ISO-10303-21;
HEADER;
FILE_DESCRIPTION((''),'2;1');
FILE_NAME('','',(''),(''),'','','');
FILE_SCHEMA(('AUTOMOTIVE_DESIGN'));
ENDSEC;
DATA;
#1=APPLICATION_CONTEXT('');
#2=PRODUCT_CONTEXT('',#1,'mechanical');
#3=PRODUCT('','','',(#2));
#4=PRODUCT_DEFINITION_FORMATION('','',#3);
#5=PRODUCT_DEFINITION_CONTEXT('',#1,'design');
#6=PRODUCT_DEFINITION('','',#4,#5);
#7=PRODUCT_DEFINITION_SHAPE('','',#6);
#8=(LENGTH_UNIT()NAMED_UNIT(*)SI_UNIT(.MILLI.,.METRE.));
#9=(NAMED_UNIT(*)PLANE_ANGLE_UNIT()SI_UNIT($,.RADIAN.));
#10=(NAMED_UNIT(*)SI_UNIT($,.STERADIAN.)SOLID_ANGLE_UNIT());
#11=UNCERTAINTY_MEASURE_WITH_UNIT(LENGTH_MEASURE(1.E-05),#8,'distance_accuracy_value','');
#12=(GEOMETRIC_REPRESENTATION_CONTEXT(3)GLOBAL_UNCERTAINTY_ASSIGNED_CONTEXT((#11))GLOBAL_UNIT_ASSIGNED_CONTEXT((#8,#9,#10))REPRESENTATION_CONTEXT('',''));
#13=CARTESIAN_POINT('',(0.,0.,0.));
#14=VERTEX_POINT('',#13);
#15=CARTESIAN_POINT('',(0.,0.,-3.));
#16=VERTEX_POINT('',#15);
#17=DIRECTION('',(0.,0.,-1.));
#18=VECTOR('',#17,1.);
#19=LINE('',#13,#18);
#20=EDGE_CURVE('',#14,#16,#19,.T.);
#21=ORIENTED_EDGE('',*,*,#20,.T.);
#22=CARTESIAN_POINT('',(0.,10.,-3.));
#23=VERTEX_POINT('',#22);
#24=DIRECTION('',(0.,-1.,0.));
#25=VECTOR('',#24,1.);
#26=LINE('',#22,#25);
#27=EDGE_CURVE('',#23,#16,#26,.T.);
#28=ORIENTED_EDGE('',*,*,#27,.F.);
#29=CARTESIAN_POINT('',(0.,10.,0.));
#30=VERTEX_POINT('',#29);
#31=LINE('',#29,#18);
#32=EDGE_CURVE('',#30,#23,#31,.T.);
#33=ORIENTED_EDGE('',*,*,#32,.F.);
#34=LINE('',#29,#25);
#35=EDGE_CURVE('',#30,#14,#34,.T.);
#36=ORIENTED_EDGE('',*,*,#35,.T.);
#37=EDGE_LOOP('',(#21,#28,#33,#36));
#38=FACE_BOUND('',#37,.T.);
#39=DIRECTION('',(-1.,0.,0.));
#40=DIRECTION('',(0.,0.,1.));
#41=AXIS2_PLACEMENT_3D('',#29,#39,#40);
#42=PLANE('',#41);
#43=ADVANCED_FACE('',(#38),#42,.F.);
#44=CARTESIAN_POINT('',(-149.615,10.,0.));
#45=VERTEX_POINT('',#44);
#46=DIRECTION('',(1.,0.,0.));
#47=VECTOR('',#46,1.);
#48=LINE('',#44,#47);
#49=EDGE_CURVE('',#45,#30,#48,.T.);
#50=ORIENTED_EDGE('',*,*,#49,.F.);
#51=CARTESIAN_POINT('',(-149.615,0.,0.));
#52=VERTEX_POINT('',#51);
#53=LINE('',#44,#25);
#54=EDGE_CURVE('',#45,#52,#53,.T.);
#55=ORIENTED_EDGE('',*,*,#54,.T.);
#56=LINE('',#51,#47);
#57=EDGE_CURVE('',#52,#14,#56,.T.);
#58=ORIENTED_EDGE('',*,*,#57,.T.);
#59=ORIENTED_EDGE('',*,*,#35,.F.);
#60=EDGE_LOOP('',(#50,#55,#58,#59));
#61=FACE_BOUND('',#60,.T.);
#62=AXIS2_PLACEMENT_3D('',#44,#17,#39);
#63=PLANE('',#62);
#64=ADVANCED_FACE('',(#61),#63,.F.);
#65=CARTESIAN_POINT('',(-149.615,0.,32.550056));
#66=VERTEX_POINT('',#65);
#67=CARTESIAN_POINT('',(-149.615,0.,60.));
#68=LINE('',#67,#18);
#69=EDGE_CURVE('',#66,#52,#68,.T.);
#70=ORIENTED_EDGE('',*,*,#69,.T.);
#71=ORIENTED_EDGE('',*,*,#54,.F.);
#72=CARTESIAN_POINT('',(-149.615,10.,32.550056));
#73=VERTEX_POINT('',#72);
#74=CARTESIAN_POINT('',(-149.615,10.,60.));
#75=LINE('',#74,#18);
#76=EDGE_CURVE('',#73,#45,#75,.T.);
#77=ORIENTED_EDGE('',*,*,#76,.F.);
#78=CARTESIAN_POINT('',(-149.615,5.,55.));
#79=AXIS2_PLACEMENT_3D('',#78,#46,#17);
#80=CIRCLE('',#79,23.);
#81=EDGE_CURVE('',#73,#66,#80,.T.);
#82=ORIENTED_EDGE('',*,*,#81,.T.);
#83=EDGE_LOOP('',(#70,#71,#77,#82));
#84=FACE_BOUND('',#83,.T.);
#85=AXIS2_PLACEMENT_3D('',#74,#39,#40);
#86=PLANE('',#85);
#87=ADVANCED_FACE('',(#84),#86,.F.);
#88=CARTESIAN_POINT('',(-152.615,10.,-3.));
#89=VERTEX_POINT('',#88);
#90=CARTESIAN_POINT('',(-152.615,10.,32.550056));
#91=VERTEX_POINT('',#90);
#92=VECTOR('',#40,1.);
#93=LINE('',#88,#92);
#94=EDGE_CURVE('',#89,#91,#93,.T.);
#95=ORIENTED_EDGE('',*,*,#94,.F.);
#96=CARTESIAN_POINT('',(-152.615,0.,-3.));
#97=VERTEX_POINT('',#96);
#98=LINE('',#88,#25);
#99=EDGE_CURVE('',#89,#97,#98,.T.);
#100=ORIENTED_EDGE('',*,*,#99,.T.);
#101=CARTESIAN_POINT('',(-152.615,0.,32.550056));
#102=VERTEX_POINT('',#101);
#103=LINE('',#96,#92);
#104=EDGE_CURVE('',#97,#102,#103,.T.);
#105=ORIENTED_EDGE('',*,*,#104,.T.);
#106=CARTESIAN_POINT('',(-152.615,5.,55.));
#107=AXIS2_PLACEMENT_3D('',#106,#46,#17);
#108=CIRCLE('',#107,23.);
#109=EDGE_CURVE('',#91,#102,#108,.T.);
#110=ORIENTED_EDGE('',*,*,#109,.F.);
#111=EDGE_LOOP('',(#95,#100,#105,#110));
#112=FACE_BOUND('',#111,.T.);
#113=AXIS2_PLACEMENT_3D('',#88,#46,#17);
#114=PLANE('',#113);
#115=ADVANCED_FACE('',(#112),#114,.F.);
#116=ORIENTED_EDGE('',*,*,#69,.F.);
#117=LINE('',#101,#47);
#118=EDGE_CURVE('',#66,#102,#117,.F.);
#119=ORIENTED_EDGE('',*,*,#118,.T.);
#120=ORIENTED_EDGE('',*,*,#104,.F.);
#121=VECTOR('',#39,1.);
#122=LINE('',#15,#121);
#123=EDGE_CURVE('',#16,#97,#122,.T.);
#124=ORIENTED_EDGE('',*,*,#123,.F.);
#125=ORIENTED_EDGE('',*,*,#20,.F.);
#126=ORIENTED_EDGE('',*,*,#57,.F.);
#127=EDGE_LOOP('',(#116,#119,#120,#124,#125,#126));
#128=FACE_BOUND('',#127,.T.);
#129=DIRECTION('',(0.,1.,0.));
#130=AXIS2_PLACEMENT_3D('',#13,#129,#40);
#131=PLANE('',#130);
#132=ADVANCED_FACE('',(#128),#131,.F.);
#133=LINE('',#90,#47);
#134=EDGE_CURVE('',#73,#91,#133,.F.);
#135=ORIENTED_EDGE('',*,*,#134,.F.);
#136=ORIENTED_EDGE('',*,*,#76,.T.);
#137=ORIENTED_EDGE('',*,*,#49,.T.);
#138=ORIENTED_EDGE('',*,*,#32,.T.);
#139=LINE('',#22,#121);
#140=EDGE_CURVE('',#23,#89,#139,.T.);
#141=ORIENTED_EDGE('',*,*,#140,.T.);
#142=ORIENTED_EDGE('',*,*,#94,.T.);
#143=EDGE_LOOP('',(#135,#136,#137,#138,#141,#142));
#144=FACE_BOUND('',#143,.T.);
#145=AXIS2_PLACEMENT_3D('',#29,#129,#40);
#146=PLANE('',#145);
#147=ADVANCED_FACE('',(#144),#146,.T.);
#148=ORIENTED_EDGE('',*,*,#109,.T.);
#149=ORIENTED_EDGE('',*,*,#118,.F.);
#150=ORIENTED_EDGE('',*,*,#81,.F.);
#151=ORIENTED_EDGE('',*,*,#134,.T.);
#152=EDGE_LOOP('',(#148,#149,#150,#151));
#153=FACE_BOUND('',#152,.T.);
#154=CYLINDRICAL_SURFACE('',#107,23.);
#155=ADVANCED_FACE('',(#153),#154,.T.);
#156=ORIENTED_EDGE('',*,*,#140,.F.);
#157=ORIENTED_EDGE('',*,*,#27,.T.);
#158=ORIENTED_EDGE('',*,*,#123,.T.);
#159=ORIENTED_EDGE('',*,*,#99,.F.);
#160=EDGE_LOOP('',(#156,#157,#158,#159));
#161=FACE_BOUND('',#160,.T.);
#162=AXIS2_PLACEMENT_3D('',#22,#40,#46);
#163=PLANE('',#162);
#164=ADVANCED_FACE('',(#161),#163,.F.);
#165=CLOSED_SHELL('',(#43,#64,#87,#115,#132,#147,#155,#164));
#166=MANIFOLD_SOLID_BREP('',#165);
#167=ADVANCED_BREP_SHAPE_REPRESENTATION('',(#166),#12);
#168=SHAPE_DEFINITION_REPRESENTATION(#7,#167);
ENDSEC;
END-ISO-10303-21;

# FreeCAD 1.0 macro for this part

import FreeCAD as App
import Part
import Sketcher

V = App.Vector

doc = App.newDocument("Part")
body = doc.addObject("PartDesign::Body", "Body")

sketch1 = body.newObject("Sketcher::SketchObject", "Sketch")
sketch1.AttachmentSupport = (doc.getObject("XZ_Plane"), [""])
sketch1.MapMode = "FlatFace"
sketch1.addGeometry([
    Part.LineSegment(V(0, 0, 0), V(0, -3, 0)),
    Part.LineSegment(V(0, -3, 0), V(-152.6, -3, 0)),
    Part.LineSegment(V(-152.6, -3, 0), V(-152.6, 60, 0)),
    Part.LineSegment(V(-152.6, 60, 0), V(-149.6, 60, 0)),
    Part.LineSegment(V(-149.6, 60, 0), V(-149.6, 0, 0)),
    Part.LineSegment(V(-149.6, 0, 0), V(0, 0, 0)),
], False)
sketch1.addConstraint([
    Sketcher.Constraint("Coincident", 0, 2, 1, 1),
    Sketcher.Constraint("Coincident", 1, 2, 2, 1),
    Sketcher.Constraint("Coincident", 2, 2, 3, 1),
    Sketcher.Constraint("Coincident", 3, 2, 4, 1),
    Sketcher.Constraint("Coincident", 4, 2, 5, 1),
    Sketcher.Constraint("Coincident", 5, 2, 0, 1),
    Sketcher.Constraint("Vertical", 0),
    Sketcher.Constraint("Horizontal", 1),
    Sketcher.Constraint("Vertical", 2),
    Sketcher.Constraint("Horizontal", 3),
    Sketcher.Constraint("Vertical", 4),
    Sketcher.Constraint("Horizontal", 5),
    Sketcher.Constraint("Coincident", 5, 2, -1, 1),
    Sketcher.Constraint("Equal", 3, 0),
    Sketcher.Constraint("DistanceX", 3, 1, 3, 2, 3.0),
    Sketcher.Constraint("DistanceY", 2, 1, 2, 2, 63.0),
    Sketcher.Constraint("DistanceX", 1, 2, 1, 1, 152.615),
])
pad1 = body.newObject("PartDesign::Pad", "Pad")
pad1.Profile = sketch1
pad1.Length = 10
pad1.Reversed = True

sketch2 = body.newObject("Sketcher::SketchObject", "Sketch001")
sketch2.AttachmentSupport = (doc.getObject("YZ_Plane"), [""])
sketch2.MapMode = "FlatFace"
sketch2.AttachmentOffset = App.Placement(V(0, 0, -149.615), App.Rotation())
sketch2.addGeometry(Part.Circle(V(5, 55, 0), V(0, 0, 1), 23), False)
sketch2.addConstraint([
    Sketcher.Constraint("Diameter", 0, 46.0),
    Sketcher.Constraint("DistanceX", -1, 1, 0, 3, 5.0),
    Sketcher.Constraint("DistanceY", -1, 1, 0, 3, 55.0),
])
pad2 = body.newObject("PartDesign::Pad", "Pad001")
pad2.Profile = sketch2
pad2.Length = 3
pad2.Reversed = True

doc.recompute()
